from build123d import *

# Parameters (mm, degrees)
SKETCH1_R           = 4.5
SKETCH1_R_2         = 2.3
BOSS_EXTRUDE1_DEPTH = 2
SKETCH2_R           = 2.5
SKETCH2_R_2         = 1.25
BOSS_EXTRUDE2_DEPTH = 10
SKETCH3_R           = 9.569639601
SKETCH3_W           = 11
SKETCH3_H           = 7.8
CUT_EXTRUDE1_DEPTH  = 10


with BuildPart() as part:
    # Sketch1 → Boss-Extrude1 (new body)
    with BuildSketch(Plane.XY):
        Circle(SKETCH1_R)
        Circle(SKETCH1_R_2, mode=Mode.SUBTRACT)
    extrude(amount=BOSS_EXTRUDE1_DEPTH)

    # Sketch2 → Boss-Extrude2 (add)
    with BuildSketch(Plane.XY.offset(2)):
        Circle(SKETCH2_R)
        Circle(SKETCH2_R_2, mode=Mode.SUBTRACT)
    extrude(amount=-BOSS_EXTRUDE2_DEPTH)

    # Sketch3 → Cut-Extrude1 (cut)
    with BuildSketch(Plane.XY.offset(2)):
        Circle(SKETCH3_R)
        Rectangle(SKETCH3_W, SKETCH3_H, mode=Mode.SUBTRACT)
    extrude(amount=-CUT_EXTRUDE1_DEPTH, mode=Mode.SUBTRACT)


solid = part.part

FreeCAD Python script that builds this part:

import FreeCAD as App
import Part
import Sketcher


def add_polygon(sketch, points):
    """Adds a closed chain of lines whose ends are joined by coincident constraints."""
    first, n = sketch.GeometryCount, len(points)
    for a, b in zip(points, points[1:] + points[:1]):
        sketch.addGeometry(Part.LineSegment(App.Vector(*a, 0), App.Vector(*b, 0)), False)
    for i in range(n):
        sketch.addConstraint(Sketcher.Constraint("Coincident", first + i, 2, first + (i + 1) % n, 1))

doc = App.newDocument("Part")
params = doc.addObject("Spreadsheet::Sheet", "Params")
for row, (alias, value) in enumerate([
    ("sketch1_diameter", "9 mm"),
    ("sketch1_diameter2", "4.6 mm"),
    ("pad1_length", "2 mm"),
    ("sketch2_diameter", "5 mm"),
    ("sketch2_diameter2", "2.5 mm"),
    ("pad2_length", "10 mm"),
    ("sketch3_width", "11 mm"),
    ("sketch3_height", "7.8 mm"),
    ("pocket1_length", "10 mm"),
], start=1):
    params.set(f"A{row}", alias)
    params.set(f"B{row}", "=" + value)
    params.setAlias(f"B{row}", alias)

body = doc.addObject("PartDesign::Body", "Body")

# Sketch on XY plane
sketch1 = body.newObject("Sketcher::SketchObject", "Sketch")
sketch1.AttachmentSupport = (doc.getObject("XY_Plane"), [""])
sketch1.MapMode = "FlatFace"
sketch1.addGeometry([
    Part.Circle(App.Vector(0, 0, 0), App.Vector(0, 0, 1), 4.5),
    Part.Circle(App.Vector(0, 0, 0), App.Vector(0, 0, 1), 2.3),
], False)
sketch1.addConstraint([
    Sketcher.Constraint("Coincident", 0, 3, -1, 1),
    Sketcher.Constraint("Coincident", 1, 3, -1, 1),
    Sketcher.Constraint("Diameter", 0, 9.0),
    Sketcher.Constraint("Diameter", 1, 4.6),
])
sketch1.setExpression("Constraints[2]", "Params.sketch1_diameter")
sketch1.setExpression("Constraints[3]", "Params.sketch1_diameter2")
pad1 = body.newObject("PartDesign::Pad", "Pad")
pad1.Profile = sketch1
pad1.setExpression("Length", "Params.pad1_length")

# Sketch on XY plane
sketch2 = body.newObject("Sketcher::SketchObject", "Sketch001")
sketch2.AttachmentSupport = (doc.getObject("XY_Plane"), [""])
sketch2.MapMode = "FlatFace"
sketch2.AttachmentOffset = App.Placement(App.Vector(0, 0, 2), App.Rotation())
sketch2.addGeometry([
    Part.Circle(App.Vector(0, 0, 0), App.Vector(0, 0, 1), 2.5),
    Part.Circle(App.Vector(0, 0, 0), App.Vector(0, 0, 1), 1.25),
], False)
sketch2.addConstraint([
    Sketcher.Constraint("Coincident", 0, 3, -1, 1),
    Sketcher.Constraint("Coincident", 1, 3, -1, 1),
    Sketcher.Constraint("Diameter", 0, 5.0),
    Sketcher.Constraint("Diameter", 1, 2.5),
])
sketch2.setExpression("Constraints[2]", "Params.sketch2_diameter")
sketch2.setExpression("Constraints[3]", "Params.sketch2_diameter2")
pad2 = body.newObject("PartDesign::Pad", "Pad001")
pad2.Profile = sketch2
pad2.setExpression("Length", "Params.pad2_length")
pad2.Reversed = True

# Sketch on XY plane
sketch3 = body.newObject("Sketcher::SketchObject", "Sketch002")
sketch3.AttachmentSupport = (doc.getObject("XY_Plane"), [""])
sketch3.MapMode = "FlatFace"
sketch3.AttachmentOffset = App.Placement(App.Vector(0, 0, 2), App.Rotation())
sketch3.addGeometry(Part.Circle(App.Vector(0, 0, 0), App.Vector(0, 0, 1), 9.56964), False)  # 0
add_polygon(sketch3, [(5.5, -3.9), (-5.5, -3.9), (-5.5, 3.9), (5.5, 3.9)])  # lines 1-4
sketch3.addConstraint([
    Sketcher.Constraint("Horizontal", 1),
    Sketcher.Constraint("Vertical", 2),
    Sketcher.Constraint("Horizontal", 3),
    Sketcher.Constraint("Vertical", 4),
    Sketcher.Constraint("Coincident", 0, 3, -1, 1),
    Sketcher.Constraint("Symmetric", 1, 2, 3, 2, -1, 1),
    Sketcher.Constraint("DistanceX", 1, 2, 1, 1, 11.0),
    Sketcher.Constraint("DistanceY", 2, 1, 2, 2, 7.8),
    Sketcher.Constraint("Diameter", 0, 19.139279),
])
sketch3.setExpression("Constraints[10]", "Params.sketch3_width")
sketch3.setExpression("Constraints[11]", "Params.sketch3_height")
pocket1 = body.newObject("PartDesign::Pocket", "Pocket")
pocket1.Profile = sketch3
pocket1.setExpression("Length", "Params.pocket1_length")

doc.recompute()
